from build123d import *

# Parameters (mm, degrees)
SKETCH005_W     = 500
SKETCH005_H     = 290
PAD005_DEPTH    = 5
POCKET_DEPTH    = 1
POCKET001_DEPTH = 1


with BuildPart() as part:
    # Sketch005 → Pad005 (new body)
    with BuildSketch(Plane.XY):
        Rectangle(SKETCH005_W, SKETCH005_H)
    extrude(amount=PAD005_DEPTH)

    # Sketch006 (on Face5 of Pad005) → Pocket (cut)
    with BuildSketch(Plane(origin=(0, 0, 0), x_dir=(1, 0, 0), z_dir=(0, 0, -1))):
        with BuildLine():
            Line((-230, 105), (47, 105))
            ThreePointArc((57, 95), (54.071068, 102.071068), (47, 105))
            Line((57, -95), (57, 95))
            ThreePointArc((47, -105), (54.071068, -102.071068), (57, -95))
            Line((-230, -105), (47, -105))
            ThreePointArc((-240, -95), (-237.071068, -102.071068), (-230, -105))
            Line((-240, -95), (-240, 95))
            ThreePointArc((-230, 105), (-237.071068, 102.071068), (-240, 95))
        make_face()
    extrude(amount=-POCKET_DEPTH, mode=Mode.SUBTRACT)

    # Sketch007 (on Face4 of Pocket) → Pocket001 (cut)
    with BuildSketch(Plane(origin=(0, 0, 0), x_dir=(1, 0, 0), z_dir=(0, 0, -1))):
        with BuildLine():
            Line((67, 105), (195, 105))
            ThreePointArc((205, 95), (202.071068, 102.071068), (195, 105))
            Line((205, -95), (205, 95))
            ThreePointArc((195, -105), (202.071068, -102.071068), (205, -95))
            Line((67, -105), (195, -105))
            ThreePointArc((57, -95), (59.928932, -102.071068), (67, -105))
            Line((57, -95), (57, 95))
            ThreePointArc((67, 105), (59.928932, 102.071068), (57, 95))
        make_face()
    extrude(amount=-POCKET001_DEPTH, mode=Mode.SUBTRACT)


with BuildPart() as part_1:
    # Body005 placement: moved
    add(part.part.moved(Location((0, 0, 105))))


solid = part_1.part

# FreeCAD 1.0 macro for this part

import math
import FreeCAD as App
import Part
import Sketcher

doc = App.newDocument("Part")
body = doc.addObject("PartDesign::Body", "Body")

# Sketch on XY plane
sketch1 = body.newObject("Sketcher::SketchObject", "Sketch")
sketch1.AttachmentSupport = (doc.getObject("XY_Plane"), [""])
sketch1.MapMode = "FlatFace"
sketch1.addGeometry(Part.LineSegment(App.Vector(-250, 145, 0), App.Vector(-250, -145, 0)), False)
sketch1.addGeometry(Part.LineSegment(App.Vector(-250, -145, 0), App.Vector(250, -145, 0)), False)
sketch1.addGeometry(Part.LineSegment(App.Vector(250, -145, 0), App.Vector(250, 145, 0)), False)
sketch1.addGeometry(Part.LineSegment(App.Vector(250, 145, 0), App.Vector(-250, 145, 0)), False)
sketch1.addConstraint(Sketcher.Constraint("Coincident", 0, 2, 1, 1))
sketch1.addConstraint(Sketcher.Constraint("Coincident", 1, 2, 2, 1))
sketch1.addConstraint(Sketcher.Constraint("Coincident", 2, 2, 3, 1))
sketch1.addConstraint(Sketcher.Constraint("Coincident", 3, 2, 0, 1))
sketch1.addConstraint(Sketcher.Constraint("Vertical", 0))
sketch1.addConstraint(Sketcher.Constraint("Horizontal", 1))
sketch1.addConstraint(Sketcher.Constraint("Vertical", 2))
sketch1.addConstraint(Sketcher.Constraint("Horizontal", 3))
sketch1.addConstraint(Sketcher.Constraint("Symmetric", 0, 2, 2, 2, -1, 1))
sketch1.addConstraint(Sketcher.Constraint("DistanceX", 1, 1, 1, 2, 500.0))
sketch1.addConstraint(Sketcher.Constraint("DistanceY", 0, 2, 0, 1, 290.0))
pad1 = body.newObject("PartDesign::Pad", "Pad")
pad1.Profile = sketch1
pad1.Length = 5

# Sketch on XY plane
sketch2 = body.newObject("Sketcher::SketchObject", "Sketch001")
sketch2.AttachmentSupport = (doc.getObject("XY_Plane"), [""])
sketch2.MapMode = "FlatFace"
sketch2.addGeometry(Part.LineSegment(App.Vector(47, -105, 0), App.Vector(-230, -105, 0)), False)
sketch2.addGeometry(Part.ArcOfCircle(Part.Circle(App.Vector(-230, -95, 0), App.Vector(0, 0, 1), 10), math.radians(180), math.radians(270)), False)
sketch2.addGeometry(Part.LineSegment(App.Vector(-240, -95, 0), App.Vector(-240, 95, 0)), False)
sketch2.addGeometry(Part.ArcOfCircle(Part.Circle(App.Vector(-230, 95, 0), App.Vector(0, 0, 1), 10), math.radians(90), math.radians(180)), False)
sketch2.addGeometry(Part.LineSegment(App.Vector(-230, 105, 0), App.Vector(47, 105, 0)), False)
sketch2.addGeometry(Part.ArcOfCircle(Part.Circle(App.Vector(47, 95, 0), App.Vector(0, 0, 1), 10), math.radians(0), math.radians(90)), False)
sketch2.addGeometry(Part.LineSegment(App.Vector(57, 95, 0), App.Vector(57, -95, 0)), False)
sketch2.addGeometry(Part.ArcOfCircle(Part.Circle(App.Vector(47, -95, 0), App.Vector(0, 0, 1), 10), math.radians(-90), math.radians(0)), False)
sketch2.addConstraint(Sketcher.Constraint("Tangent", 0, 2, 1, 2))
sketch2.addConstraint(Sketcher.Constraint("Tangent", 1, 1, 2, 1))
sketch2.addConstraint(Sketcher.Constraint("Tangent", 2, 2, 3, 2))
sketch2.addConstraint(Sketcher.Constraint("Tangent", 3, 1, 4, 1))
sketch2.addConstraint(Sketcher.Constraint("Tangent", 4, 2, 5, 2))
sketch2.addConstraint(Sketcher.Constraint("Tangent", 5, 1, 6, 1))
sketch2.addConstraint(Sketcher.Constraint("Tangent", 6, 2, 7, 2))
sketch2.addConstraint(Sketcher.Constraint("Tangent", 7, 1, 0, 1))
sketch2.addConstraint(Sketcher.Constraint("Horizontal", 0))
sketch2.addConstraint(Sketcher.Constraint("Vertical", 2))
sketch2.addConstraint(Sketcher.Constraint("Horizontal", 4))
sketch2.addConstraint(Sketcher.Constraint("Vertical", 6))
sketch2.addConstraint(Sketcher.Constraint("Equal", 1, 3))
sketch2.addConstraint(Sketcher.Constraint("Equal", 3, 5))
sketch2.addConstraint(Sketcher.Constraint("Equal", 5, 7))
sketch2.addConstraint(Sketcher.Constraint("Radius", 1, 9.999999))
sketch2.addConstraint(Sketcher.Constraint("DistanceX", 0, 2, 0, 1, 277.0))
sketch2.addConstraint(Sketcher.Constraint("DistanceY", 2, 1, 2, 2, 190.0))
sketch2.addConstraint(Sketcher.Constraint("DistanceX", 1, 3, -1, 1, 230.000001))
sketch2.addConstraint(Sketcher.Constraint("DistanceY", 1, 3, -1, 1, 95.000001))
pocket1 = body.newObject("PartDesign::Pocket", "Pocket")
pocket1.Profile = sketch2
pocket1.Length = 1
pocket1.Reversed = True

# Sketch on XY plane
sketch3 = body.newObject("Sketcher::SketchObject", "Sketch002")
sketch3.AttachmentSupport = (doc.getObject("XY_Plane"), [""])
sketch3.MapMode = "FlatFace"
sketch3.addGeometry(Part.LineSegment(App.Vector(195, -105, 0), App.Vector(67, -105, 0)), False)
sketch3.addGeometry(Part.ArcOfCircle(Part.Circle(App.Vector(67, -95, 0), App.Vector(0, 0, 1), 10), math.radians(180), math.radians(270)), False)
sketch3.addGeometry(Part.LineSegment(App.Vector(57, -95, 0), App.Vector(57, 95, 0)), False)
sketch3.addGeometry(Part.ArcOfCircle(Part.Circle(App.Vector(67, 95, 0), App.Vector(0, 0, 1), 10), math.radians(90), math.radians(180)), False)
sketch3.addGeometry(Part.LineSegment(App.Vector(67, 105, 0), App.Vector(195, 105, 0)), False)
sketch3.addGeometry(Part.ArcOfCircle(Part.Circle(App.Vector(195, 95, 0), App.Vector(0, 0, 1), 10), math.radians(0), math.radians(90)), False)
sketch3.addGeometry(Part.LineSegment(App.Vector(205, 95, 0), App.Vector(205, -95, 0)), False)
sketch3.addGeometry(Part.ArcOfCircle(Part.Circle(App.Vector(195, -95, 0), App.Vector(0, 0, 1), 10), math.radians(-90), math.radians(0)), False)
sketch3.addConstraint(Sketcher.Constraint("Tangent", 0, 2, 1, 2))
sketch3.addConstraint(Sketcher.Constraint("Tangent", 1, 1, 2, 1))
sketch3.addConstraint(Sketcher.Constraint("Tangent", 2, 2, 3, 2))
sketch3.addConstraint(Sketcher.Constraint("Tangent", 3, 1, 4, 1))
sketch3.addConstraint(Sketcher.Constraint("Tangent", 4, 2, 5, 2))
sketch3.addConstraint(Sketcher.Constraint("Tangent", 5, 1, 6, 1))
sketch3.addConstraint(Sketcher.Constraint("Tangent", 6, 2, 7, 2))
sketch3.addConstraint(Sketcher.Constraint("Tangent", 7, 1, 0, 1))
sketch3.addConstraint(Sketcher.Constraint("Horizontal", 0))
sketch3.addConstraint(Sketcher.Constraint("Vertical", 2))
sketch3.addConstraint(Sketcher.Constraint("Horizontal", 4))
sketch3.addConstraint(Sketcher.Constraint("Vertical", 6))
sketch3.addConstraint(Sketcher.Constraint("Equal", 1, 3))
sketch3.addConstraint(Sketcher.Constraint("Equal", 3, 5))
sketch3.addConstraint(Sketcher.Constraint("Equal", 5, 7))
sketch3.addConstraint(Sketcher.Constraint("Radius", 1, 9.999999))
sketch3.addConstraint(Sketcher.Constraint("DistanceX", 0, 2, 0, 1, 128.0))
sketch3.addConstraint(Sketcher.Constraint("DistanceY", 2, 1, 2, 2, 190.0))
sketch3.addConstraint(Sketcher.Constraint("DistanceX", -1, 1, 1, 3, 66.999999))
sketch3.addConstraint(Sketcher.Constraint("DistanceY", 1, 3, -1, 1, 95.000001))
pocket2 = body.newObject("PartDesign::Pocket", "Pocket001")
pocket2.Profile = sketch3
pocket2.Length = 1
pocket2.Reversed = True
body2 = doc.addObject("PartDesign::Body", "Body001")
doc.recompute()

body.Placement = App.Placement(App.Vector(0, 0, 105), App.Rotation(App.Vector(0, 0, 1), 0))
boolean = body2.newObject("PartDesign::Boolean", "Boolean")
boolean.Type = "Fuse"
boolean.addObjects([body])

doc.recompute()
